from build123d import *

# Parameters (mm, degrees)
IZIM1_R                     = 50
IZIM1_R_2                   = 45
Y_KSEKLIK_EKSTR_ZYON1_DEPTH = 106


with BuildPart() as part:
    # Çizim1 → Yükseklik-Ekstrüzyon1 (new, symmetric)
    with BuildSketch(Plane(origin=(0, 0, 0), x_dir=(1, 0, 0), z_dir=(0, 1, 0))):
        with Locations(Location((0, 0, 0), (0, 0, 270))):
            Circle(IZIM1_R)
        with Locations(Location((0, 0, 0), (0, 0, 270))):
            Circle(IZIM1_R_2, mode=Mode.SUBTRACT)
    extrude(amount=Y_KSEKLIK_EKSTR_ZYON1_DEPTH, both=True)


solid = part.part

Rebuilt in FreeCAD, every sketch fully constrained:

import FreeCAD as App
import Part
import Sketcher
Q = App.Units.Quantity

doc = App.newDocument("Part")
body = doc.addObject("PartDesign::Body", "Body")

sketch1 = body.newObject("Sketcher::SketchObject", "Sketch")
sketch1.AttachmentSupport = (doc.getObject("XZ_Plane"), [""])
sketch1.MapMode = "FlatFace"
sketch1.addGeometry([
    Part.Circle(App.Vector(0, 0, 0), App.Vector(0, 0, 1), 50),
    Part.Circle(App.Vector(0, 0, 0), App.Vector(0, 0, 1), 45),
], False)
sketch1.addConstraint([
    Sketcher.Constraint("Coincident", 0, 3, -1, 1),
    Sketcher.Constraint("Coincident", 1, 3, -1, 1),
    Sketcher.Constraint("Diameter", 0, Q("100 mm")),
    Sketcher.Constraint("Diameter", 1, Q("90 mm")),
])
pad1 = body.newObject("PartDesign::Pad", "Pad")
pad1.Profile = sketch1
pad1.Length = 212
pad1.Midplane = True

doc.recompute()
